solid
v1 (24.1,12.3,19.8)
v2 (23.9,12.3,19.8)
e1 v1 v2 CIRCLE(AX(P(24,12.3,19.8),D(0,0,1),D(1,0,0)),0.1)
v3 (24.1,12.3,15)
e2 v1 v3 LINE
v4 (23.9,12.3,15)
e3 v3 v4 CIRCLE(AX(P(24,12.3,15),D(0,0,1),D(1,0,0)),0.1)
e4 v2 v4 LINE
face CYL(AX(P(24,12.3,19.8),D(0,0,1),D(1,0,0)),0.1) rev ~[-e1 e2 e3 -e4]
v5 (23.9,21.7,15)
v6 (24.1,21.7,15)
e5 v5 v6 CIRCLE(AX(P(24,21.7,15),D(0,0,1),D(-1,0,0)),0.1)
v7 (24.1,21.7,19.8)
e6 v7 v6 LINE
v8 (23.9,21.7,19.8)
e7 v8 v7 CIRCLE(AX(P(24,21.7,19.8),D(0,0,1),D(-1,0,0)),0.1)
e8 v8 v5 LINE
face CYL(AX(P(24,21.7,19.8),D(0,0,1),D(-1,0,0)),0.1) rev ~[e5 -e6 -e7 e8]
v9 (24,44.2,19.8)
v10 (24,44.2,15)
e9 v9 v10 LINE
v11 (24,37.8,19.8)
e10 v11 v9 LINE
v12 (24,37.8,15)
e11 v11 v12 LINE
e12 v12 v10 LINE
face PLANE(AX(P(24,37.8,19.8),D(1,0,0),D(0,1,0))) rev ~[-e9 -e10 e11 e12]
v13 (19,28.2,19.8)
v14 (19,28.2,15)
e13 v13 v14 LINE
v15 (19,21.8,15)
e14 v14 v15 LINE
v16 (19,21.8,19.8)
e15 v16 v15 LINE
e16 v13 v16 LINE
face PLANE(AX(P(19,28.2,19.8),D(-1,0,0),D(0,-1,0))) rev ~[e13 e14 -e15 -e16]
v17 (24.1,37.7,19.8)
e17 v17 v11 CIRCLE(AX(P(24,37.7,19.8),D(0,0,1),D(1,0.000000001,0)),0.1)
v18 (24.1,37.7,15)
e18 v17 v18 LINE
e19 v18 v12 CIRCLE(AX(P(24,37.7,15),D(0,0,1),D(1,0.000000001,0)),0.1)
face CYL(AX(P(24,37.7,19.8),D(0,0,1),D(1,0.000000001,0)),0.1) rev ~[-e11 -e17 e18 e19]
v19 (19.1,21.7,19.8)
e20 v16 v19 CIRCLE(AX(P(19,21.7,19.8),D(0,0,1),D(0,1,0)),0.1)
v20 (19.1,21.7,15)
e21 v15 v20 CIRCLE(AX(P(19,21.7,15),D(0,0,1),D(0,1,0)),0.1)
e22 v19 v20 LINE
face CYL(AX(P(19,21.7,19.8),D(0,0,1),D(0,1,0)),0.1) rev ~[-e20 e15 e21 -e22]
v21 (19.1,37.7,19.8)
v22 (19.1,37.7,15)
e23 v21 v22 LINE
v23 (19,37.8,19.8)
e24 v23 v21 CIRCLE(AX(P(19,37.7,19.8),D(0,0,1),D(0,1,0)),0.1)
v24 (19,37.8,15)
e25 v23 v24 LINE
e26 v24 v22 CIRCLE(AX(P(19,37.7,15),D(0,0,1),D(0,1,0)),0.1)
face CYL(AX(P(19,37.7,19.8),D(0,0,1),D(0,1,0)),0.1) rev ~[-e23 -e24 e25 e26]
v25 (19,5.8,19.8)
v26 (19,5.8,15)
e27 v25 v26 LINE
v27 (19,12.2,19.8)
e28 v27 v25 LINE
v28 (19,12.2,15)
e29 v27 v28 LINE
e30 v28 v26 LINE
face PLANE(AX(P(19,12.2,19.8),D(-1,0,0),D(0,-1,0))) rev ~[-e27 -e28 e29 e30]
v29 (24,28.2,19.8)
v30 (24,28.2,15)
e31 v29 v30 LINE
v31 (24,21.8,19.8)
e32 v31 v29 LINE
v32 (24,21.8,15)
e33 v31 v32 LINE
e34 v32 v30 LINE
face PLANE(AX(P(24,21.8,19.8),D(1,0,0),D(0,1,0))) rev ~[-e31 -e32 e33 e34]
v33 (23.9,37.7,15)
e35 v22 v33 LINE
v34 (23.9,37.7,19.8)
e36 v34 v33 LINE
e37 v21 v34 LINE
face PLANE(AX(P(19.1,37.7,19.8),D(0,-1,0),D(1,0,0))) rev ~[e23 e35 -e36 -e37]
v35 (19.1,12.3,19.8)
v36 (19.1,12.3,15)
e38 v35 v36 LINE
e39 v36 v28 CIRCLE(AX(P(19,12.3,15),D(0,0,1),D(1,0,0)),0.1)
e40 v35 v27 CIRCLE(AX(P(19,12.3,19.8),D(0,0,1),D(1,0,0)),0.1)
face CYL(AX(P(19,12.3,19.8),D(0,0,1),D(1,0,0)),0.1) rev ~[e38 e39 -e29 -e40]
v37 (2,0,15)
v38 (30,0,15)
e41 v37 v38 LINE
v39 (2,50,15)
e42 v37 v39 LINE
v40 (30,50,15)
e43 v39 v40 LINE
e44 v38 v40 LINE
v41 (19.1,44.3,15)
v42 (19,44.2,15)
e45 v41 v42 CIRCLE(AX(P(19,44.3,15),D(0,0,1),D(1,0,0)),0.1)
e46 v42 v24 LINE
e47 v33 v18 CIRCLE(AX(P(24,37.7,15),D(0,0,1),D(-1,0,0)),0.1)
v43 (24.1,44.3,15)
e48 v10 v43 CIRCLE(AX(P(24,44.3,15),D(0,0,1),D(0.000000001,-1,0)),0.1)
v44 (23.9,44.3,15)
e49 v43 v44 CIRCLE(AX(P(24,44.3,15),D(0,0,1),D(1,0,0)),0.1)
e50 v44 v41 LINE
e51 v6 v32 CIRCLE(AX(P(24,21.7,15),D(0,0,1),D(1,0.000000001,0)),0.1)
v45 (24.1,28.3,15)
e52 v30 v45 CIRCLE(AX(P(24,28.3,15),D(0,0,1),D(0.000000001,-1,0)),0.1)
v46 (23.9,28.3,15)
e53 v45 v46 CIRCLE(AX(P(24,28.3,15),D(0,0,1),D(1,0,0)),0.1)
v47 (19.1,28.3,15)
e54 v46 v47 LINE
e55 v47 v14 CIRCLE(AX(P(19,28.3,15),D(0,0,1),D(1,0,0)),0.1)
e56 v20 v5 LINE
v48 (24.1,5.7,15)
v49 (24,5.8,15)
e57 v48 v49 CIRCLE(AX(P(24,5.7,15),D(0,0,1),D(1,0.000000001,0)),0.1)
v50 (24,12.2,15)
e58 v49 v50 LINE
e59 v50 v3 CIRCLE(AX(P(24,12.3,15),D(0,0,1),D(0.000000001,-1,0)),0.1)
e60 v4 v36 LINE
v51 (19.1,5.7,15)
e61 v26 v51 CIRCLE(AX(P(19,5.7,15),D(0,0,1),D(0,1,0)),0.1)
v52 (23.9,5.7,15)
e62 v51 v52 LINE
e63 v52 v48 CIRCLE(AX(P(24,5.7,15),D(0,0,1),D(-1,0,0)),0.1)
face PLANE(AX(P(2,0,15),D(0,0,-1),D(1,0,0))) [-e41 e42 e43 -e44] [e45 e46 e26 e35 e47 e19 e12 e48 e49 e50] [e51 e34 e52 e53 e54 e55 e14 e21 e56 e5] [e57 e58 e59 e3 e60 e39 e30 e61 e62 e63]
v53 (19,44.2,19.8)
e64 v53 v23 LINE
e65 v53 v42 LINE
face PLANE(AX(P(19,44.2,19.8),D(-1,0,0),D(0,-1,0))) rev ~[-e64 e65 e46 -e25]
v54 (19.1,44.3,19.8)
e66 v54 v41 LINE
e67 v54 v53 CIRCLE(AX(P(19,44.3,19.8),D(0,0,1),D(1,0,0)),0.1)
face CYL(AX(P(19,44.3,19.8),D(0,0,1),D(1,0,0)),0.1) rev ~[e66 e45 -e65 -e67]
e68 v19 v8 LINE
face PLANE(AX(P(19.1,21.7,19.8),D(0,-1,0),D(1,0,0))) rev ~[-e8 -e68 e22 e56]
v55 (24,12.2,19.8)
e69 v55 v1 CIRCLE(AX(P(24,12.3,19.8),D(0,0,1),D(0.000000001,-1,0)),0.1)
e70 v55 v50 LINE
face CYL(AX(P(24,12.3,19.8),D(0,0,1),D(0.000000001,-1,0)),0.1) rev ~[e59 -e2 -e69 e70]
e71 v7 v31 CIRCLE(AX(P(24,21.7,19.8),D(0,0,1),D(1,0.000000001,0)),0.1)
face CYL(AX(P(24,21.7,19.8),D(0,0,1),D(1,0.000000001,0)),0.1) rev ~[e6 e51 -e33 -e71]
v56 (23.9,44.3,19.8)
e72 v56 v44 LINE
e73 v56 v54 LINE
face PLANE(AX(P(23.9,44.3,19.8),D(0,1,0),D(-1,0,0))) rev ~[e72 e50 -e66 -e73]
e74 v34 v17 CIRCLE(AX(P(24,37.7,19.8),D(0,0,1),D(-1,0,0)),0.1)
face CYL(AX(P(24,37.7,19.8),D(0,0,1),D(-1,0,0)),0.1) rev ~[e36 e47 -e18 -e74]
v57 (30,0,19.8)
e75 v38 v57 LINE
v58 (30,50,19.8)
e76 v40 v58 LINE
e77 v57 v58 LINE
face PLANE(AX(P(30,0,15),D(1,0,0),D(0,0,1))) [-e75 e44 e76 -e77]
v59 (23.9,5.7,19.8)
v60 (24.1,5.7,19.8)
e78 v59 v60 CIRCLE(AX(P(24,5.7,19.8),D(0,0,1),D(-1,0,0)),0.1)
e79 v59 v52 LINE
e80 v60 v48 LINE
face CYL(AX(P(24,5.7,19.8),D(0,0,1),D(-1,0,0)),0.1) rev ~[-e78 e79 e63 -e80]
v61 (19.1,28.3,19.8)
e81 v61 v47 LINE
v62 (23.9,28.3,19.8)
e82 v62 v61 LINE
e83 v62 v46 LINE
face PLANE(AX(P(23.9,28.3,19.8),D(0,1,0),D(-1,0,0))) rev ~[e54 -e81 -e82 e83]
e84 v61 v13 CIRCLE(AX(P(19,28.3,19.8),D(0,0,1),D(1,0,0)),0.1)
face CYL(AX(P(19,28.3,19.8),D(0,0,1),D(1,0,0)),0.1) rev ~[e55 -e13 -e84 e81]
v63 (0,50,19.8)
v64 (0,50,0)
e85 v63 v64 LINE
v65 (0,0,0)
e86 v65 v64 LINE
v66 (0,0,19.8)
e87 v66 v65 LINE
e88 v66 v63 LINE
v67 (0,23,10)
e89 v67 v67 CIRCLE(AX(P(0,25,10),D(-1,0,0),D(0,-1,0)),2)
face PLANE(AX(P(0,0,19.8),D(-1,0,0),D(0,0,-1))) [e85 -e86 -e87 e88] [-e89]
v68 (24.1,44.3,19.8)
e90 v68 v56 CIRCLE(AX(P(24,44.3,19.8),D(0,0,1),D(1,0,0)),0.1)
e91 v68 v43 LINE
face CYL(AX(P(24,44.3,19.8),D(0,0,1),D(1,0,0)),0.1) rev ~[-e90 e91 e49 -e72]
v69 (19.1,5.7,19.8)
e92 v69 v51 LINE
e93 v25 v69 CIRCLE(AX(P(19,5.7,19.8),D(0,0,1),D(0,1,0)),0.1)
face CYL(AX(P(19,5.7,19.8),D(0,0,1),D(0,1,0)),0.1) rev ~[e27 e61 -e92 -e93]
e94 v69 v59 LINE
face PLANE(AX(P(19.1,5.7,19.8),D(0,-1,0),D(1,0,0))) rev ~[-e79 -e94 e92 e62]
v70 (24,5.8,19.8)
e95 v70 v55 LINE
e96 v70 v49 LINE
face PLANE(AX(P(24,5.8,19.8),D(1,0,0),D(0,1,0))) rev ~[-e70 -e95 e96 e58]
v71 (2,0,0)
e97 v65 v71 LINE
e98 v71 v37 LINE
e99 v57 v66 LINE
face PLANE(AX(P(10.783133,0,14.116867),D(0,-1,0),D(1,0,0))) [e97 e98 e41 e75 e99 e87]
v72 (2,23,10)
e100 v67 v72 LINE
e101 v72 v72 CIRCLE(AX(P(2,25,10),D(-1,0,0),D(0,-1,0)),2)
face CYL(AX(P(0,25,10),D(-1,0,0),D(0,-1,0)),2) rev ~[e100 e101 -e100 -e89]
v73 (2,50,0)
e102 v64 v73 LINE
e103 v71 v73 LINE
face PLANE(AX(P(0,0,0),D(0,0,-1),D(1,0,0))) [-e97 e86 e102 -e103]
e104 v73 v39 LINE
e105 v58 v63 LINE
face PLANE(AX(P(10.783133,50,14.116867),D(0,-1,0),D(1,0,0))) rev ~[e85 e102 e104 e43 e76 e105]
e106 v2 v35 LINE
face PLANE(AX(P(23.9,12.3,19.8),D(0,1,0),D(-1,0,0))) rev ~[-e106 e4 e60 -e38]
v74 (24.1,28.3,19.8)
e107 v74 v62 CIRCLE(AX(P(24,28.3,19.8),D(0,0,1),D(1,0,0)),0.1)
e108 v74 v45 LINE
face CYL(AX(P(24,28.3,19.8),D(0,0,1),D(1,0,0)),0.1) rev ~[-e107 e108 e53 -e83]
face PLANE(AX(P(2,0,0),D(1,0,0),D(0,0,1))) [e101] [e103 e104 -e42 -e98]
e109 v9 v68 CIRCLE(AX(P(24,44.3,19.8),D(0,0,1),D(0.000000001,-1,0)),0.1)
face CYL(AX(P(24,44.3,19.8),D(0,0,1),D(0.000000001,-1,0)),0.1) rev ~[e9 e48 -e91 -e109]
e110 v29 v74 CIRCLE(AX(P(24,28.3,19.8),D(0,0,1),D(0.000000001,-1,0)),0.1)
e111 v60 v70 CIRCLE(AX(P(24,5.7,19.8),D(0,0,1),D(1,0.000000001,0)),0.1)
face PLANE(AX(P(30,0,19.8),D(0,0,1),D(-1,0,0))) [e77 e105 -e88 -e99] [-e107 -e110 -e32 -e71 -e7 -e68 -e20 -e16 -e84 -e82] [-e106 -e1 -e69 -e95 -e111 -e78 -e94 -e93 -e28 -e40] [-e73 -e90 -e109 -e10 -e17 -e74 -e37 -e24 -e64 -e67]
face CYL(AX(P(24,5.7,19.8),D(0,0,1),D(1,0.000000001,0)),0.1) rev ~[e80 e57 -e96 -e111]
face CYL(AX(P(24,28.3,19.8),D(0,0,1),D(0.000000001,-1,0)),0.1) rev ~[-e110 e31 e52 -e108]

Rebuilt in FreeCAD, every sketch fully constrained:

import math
import FreeCAD as App
import Part
import Sketcher
from FreeCAD import Vector
Q = App.Units.Quantity


def add_polygon(sketch, points):
    """Adds a closed chain of lines whose ends are joined by coincident constraints."""
    first, n = sketch.GeometryCount, len(points)
    for a, b in zip(points, points[1:] + points[:1]):
        sketch.addGeometry(Part.LineSegment(App.Vector(*a, 0), App.Vector(*b, 0)), False)
    for i in range(n):
        sketch.addConstraint(Sketcher.Constraint("Coincident", first + i, 2, first + (i + 1) % n, 1))

doc = App.newDocument("Part")
body = doc.addObject("PartDesign::Body", "Body")

# Sketch on XZ plane
sketch1 = body.newObject("Sketcher::SketchObject", "Sketch")
sketch1.AttachmentSupport = (doc.getObject("XZ_Plane"), [""])
sketch1.MapMode = "FlatFace"
add_polygon(sketch1, [(0, 19.8), (0, 0), (2, 0), (2, 15), (30, 15), (30, 19.8)])  # lines 0-5
sketch1.addConstraint([
    Sketcher.Constraint("Vertical", 0),
    Sketcher.Constraint("Horizontal", 1),
    Sketcher.Constraint("Vertical", 2),
    Sketcher.Constraint("Horizontal", 3),
    Sketcher.Constraint("Vertical", 4),
    Sketcher.Constraint("Horizontal", 5),
    Sketcher.Constraint("Coincident", 0, 2, -1, 1),
    Sketcher.Constraint("DistanceX", 1, 1, 1, 2, Q("2 mm")),
    Sketcher.Constraint("DistanceX", 3, 1, 3, 2, Q("28 mm")),
    Sketcher.Constraint("DistanceY", 2, 1, 2, 2, Q("15 mm")),
    Sketcher.Constraint("DistanceY", 0, 2, 0, 1, Q("19.8 mm")),
])
pad1 = body.newObject("PartDesign::Pad", "Pad")
pad1.Profile = sketch1
pad1.Length = 50
pad1.Reversed = True

# Sketch on YZ plane
sketch2 = body.newObject("Sketcher::SketchObject", "Sketch001")
sketch2.AttachmentSupport = (doc.getObject("YZ_Plane"), [""])
sketch2.MapMode = "FlatFace"
sketch2.addGeometry(Part.Circle(Vector(25, 10, 0), Vector(0, 0, 1), 2), False)
sketch2.addConstraint([
    Sketcher.Constraint("Diameter", 0, Q("4 mm")),
    Sketcher.Constraint("DistanceX", -1, 1, 0, 3, Q("25 mm")),
    Sketcher.Constraint("DistanceY", -1, 1, 0, 3, Q("10 mm")),
])
pocket1 = body.newObject("PartDesign::Pocket", "Pocket")
pocket1.Profile = sketch2
pocket1.Type = "ThroughAll"
pocket1.Reversed = True

# Sketch on XY plane
sketch3 = body.newObject("Sketcher::SketchObject", "Sketch002")
sketch3.AttachmentSupport = (doc.getObject("XY_Plane"), [""])
sketch3.MapMode = "FlatFace"
sketch3.AttachmentOffset = App.Placement(Vector(0, 0, 19.8), App.Rotation())
sketch3.addGeometry([
    Part.ArcOfCircle(Part.Circle(Vector(19, 21.7, 0), Vector(0, 0, 1), 0.1), math.radians(90), math.radians(360)),  # 0
    Part.LineSegment(Vector(19.1, 21.7, 0), Vector(23.9, 21.7, 0)),  # 1
    Part.ArcOfCircle(Part.Circle(Vector(24, 21.7, 0), Vector(0, 0, 1), 0.1), math.radians(180), math.radians(360)),  # 2
    Part.ArcOfCircle(Part.Circle(Vector(24, 21.7, 0), Vector(0, 0, 1), 0.1), math.radians(0), math.radians(90)),  # 3
    Part.LineSegment(Vector(24, 21.8, 0), Vector(24, 28.2, 0)),  # 4
    Part.ArcOfCircle(Part.Circle(Vector(24, 28.3, 0), Vector(0, 0, 1), 0.1), math.radians(-90), math.radians(0)),  # 5
    Part.ArcOfCircle(Part.Circle(Vector(24, 28.3, 0), Vector(0, 0, 1), 0.1), math.radians(0), math.radians(180)),  # 6
    Part.LineSegment(Vector(23.9, 28.3, 0), Vector(19.1, 28.3, 0)),  # 7
    Part.ArcOfCircle(Part.Circle(Vector(19, 28.3, 0), Vector(0, 0, 1), 0.1), math.radians(0), math.radians(270)),  # 8
    Part.LineSegment(Vector(19, 28.2, 0), Vector(19, 21.8, 0)),  # 9
    Part.ArcOfCircle(Part.Circle(Vector(19, 37.7, 0), Vector(0, 0, 1), 0.1), math.radians(90), math.radians(360)),  # 10
    Part.LineSegment(Vector(19.1, 37.7, 0), Vector(23.9, 37.7, 0)),  # 11
    Part.ArcOfCircle(Part.Circle(Vector(24, 37.7, 0), Vector(0, 0, 1), 0.1), math.radians(180), math.radians(360)),  # 12
    Part.ArcOfCircle(Part.Circle(Vector(24, 37.7, 0), Vector(0, 0, 1), 0.1), math.radians(0), math.radians(90)),  # 13
    Part.LineSegment(Vector(24, 37.8, 0), Vector(24, 44.2, 0)),  # 14
    Part.ArcOfCircle(Part.Circle(Vector(24, 44.3, 0), Vector(0, 0, 1), 0.1), math.radians(-90), math.radians(0)),  # 15
    Part.ArcOfCircle(Part.Circle(Vector(24, 44.3, 0), Vector(0, 0, 1), 0.1), math.radians(0), math.radians(180)),  # 16
    Part.LineSegment(Vector(23.9, 44.3, 0), Vector(19.1, 44.3, 0)),  # 17
    Part.ArcOfCircle(Part.Circle(Vector(19, 44.3, 0), Vector(0, 0, 1), 0.1), math.radians(0), math.radians(270)),  # 18
    Part.LineSegment(Vector(19, 44.2, 0), Vector(19, 37.8, 0)),  # 19
    Part.ArcOfCircle(Part.Circle(Vector(19, 12.3, 0), Vector(0, 0, 1), 0.1), math.radians(0), math.radians(270)),  # 20
    Part.LineSegment(Vector(19, 12.2, 0), Vector(19, 5.8, 0)),  # 21
    Part.ArcOfCircle(Part.Circle(Vector(19, 5.7, 0), Vector(0, 0, 1), 0.1), math.radians(90), math.radians(360)),  # 22
    Part.LineSegment(Vector(19.1, 5.7, 0), Vector(23.9, 5.7, 0)),  # 23
    Part.ArcOfCircle(Part.Circle(Vector(24, 5.7, 0), Vector(0, 0, 1), 0.1), math.radians(180), math.radians(360)),  # 24
    Part.ArcOfCircle(Part.Circle(Vector(24, 5.7, 0), Vector(0, 0, 1), 0.1), math.radians(0), math.radians(90)),  # 25
    Part.LineSegment(Vector(24, 5.8, 0), Vector(24, 12.2, 0)),  # 26
    Part.ArcOfCircle(Part.Circle(Vector(24, 12.3, 0), Vector(0, 0, 1), 0.1), math.radians(-90), math.radians(0)),  # 27
    Part.ArcOfCircle(Part.Circle(Vector(24, 12.3, 0), Vector(0, 0, 1), 0.1), math.radians(0), math.radians(180)),  # 28
    Part.LineSegment(Vector(23.9, 12.3, 0), Vector(19.1, 12.3, 0)),  # 29
], False)
sketch3.addConstraint([
    Sketcher.Constraint("Coincident", 0, 2, 1, 1),
    Sketcher.Constraint("Coincident", 1, 2, 2, 1),
    Sketcher.Constraint("Tangent", 2, 2, 3, 1),
    Sketcher.Constraint("Coincident", 3, 2, 4, 1),
    Sketcher.Constraint("Coincident", 4, 2, 5, 1),
    Sketcher.Constraint("Tangent", 5, 2, 6, 1),
    Sketcher.Constraint("Coincident", 6, 2, 7, 1),
    Sketcher.Constraint("Coincident", 7, 2, 8, 1),
    Sketcher.Constraint("Coincident", 8, 2, 9, 1),
    Sketcher.Constraint("Coincident", 9, 2, 0, 1),
    Sketcher.Constraint("Coincident", 10, 2, 11, 1),
    Sketcher.Constraint("Coincident", 11, 2, 12, 1),
    Sketcher.Constraint("Tangent", 12, 2, 13, 1),
    Sketcher.Constraint("Coincident", 13, 2, 14, 1),
    Sketcher.Constraint("Coincident", 14, 2, 15, 1),
    Sketcher.Constraint("Tangent", 15, 2, 16, 1),
    Sketcher.Constraint("Coincident", 16, 2, 17, 1),
    Sketcher.Constraint("Coincident", 17, 2, 18, 1),
    Sketcher.Constraint("Coincident", 18, 2, 19, 1),
    Sketcher.Constraint("Coincident", 19, 2, 10, 1),
    Sketcher.Constraint("Coincident", 20, 2, 21, 1),
    Sketcher.Constraint("Coincident", 21, 2, 22, 1),
    Sketcher.Constraint("Coincident", 22, 2, 23, 1),
    Sketcher.Constraint("Coincident", 23, 2, 24, 1),
    Sketcher.Constraint("Tangent", 24, 2, 25, 1),
    Sketcher.Constraint("Coincident", 25, 2, 26, 1),
    Sketcher.Constraint("Coincident", 26, 2, 27, 1),
    Sketcher.Constraint("Tangent", 27, 2, 28, 1),
    Sketcher.Constraint("Coincident", 28, 2, 29, 1),
    Sketcher.Constraint("Coincident", 29, 2, 20, 1),
    Sketcher.Constraint("Horizontal", 1),
    Sketcher.Constraint("Vertical", 4),
    Sketcher.Constraint("Horizontal", 7),
    Sketcher.Constraint("Vertical", 9),
    Sketcher.Constraint("Horizontal", 11),
    Sketcher.Constraint("Vertical", 14),
    Sketcher.Constraint("Horizontal", 17),
    Sketcher.Constraint("Vertical", 19),
    Sketcher.Constraint("Vertical", 21),
    Sketcher.Constraint("Horizontal", 23),
    Sketcher.Constraint("Vertical", 26),
    Sketcher.Constraint("Horizontal", 29),
    Sketcher.Constraint("Equal", 0, 2),
    Sketcher.Constraint("Equal", 2, 3),
    Sketcher.Constraint("Equal", 3, 5),
    Sketcher.Constraint("Equal", 5, 6),
    Sketcher.Constraint("Equal", 6, 8),
    Sketcher.Constraint("Equal", 8, 10),
    Sketcher.Constraint("Equal", 10, 12),
    Sketcher.Constraint("Equal", 12, 13),
    Sketcher.Constraint("Equal", 13, 15),
    Sketcher.Constraint("Equal", 15, 16),
    Sketcher.Constraint("Equal", 16, 18),
    Sketcher.Constraint("Equal", 18, 20),
    Sketcher.Constraint("Equal", 20, 22),
    Sketcher.Constraint("Equal", 22, 24),
    Sketcher.Constraint("Equal", 24, 25),
    Sketcher.Constraint("Equal", 25, 27),
    Sketcher.Constraint("Equal", 27, 28),
    Sketcher.Constraint("Horizontal", 0, 3, 2, 3),
    Sketcher.Constraint("Horizontal", 6, 3, 8, 3),
    Sketcher.Constraint("Horizontal", 10, 3, 12, 3),
    Sketcher.Constraint("Horizontal", 16, 3, 18, 3),
    Sketcher.Constraint("Horizontal", 22, 3, 24, 3),
    Sketcher.Constraint("Horizontal", 20, 3, 27, 3),
    Sketcher.Constraint("Horizontal", 3, 3, 0, 2),
    Sketcher.Constraint("Horizontal", 1, 2, 2, 2),
    Sketcher.Constraint("Horizontal", 8, 3, 5, 2),
    Sketcher.Constraint("Horizontal", 5, 2, 6, 2),
    Sketcher.Constraint("Horizontal", 13, 3, 10, 2),
    Sketcher.Constraint("Horizontal", 11, 2, 12, 2),
    Sketcher.Constraint("Horizontal", 18, 3, 15, 2),
    Sketcher.Constraint("Horizontal", 15, 2, 16, 2),
    Sketcher.Constraint("Horizontal", 25, 3, 22, 2),
    Sketcher.Constraint("Horizontal", 23, 2, 24, 2),
    Sketcher.Constraint("Horizontal", 28, 3, 27, 2),
    Sketcher.Constraint("Horizontal", 27, 2, 28, 2),
    Sketcher.Constraint("Vertical", 3, 3, 5, 3),
    Sketcher.Constraint("Vertical", 0, 3, 8, 3),
    Sketcher.Constraint("Vertical", 8, 3, 10, 3),
    Sketcher.Constraint("Vertical", 6, 3, 12, 3),
    Sketcher.Constraint("Vertical", 13, 3, 15, 3),
    Sketcher.Constraint("Vertical", 10, 3, 18, 3),
    Sketcher.Constraint("Vertical", 18, 3, 20, 3),
    Sketcher.Constraint("Vertical", 20, 3, 22, 3),
    Sketcher.Constraint("Vertical", 16, 3, 24, 3),
    Sketcher.Constraint("Vertical", 25, 3, 27, 3),
    Sketcher.Constraint("Vertical", 28, 3, 3, 2),
    Sketcher.Constraint("Vertical", 22, 3, 8, 2),
    Sketcher.Constraint("Vertical", 4, 2, 13, 2),
    Sketcher.Constraint("Vertical", 9, 2, 18, 2),
    Sketcher.Constraint("Vertical", 19, 2, 20, 2),
    Sketcher.Constraint("Vertical", 14, 2, 25, 2),
    Sketcher.Constraint("Equal", 9, 14),
    Sketcher.Constraint("Equal", 19, 21),
    Sketcher.Constraint("Radius", 0, Q("0.1 mm")),
    Sketcher.Constraint("DistanceX", 1, 1, 1, 2, Q("4.8 mm")),
    Sketcher.Constraint("DistanceY", 4, 1, 4, 2, Q("6.4 mm")),
    Sketcher.Constraint("DistanceX", -1, 1, 0, 3, Q("19 mm")),
    Sketcher.Constraint("DistanceY", 0, 3, 10, 3, Q("16 mm")),
    Sketcher.Constraint("DistanceY", 20, 3, 8, 3, Q("16 mm")),
    Sketcher.Constraint("DistanceY", -1, 1, 0, 3, Q("21.7 mm")),
])
pocket2 = body.newObject("PartDesign::Pocket", "Pocket001")
pocket2.Profile = sketch3
pocket2.Type = "ThroughAll"

doc.recompute()
